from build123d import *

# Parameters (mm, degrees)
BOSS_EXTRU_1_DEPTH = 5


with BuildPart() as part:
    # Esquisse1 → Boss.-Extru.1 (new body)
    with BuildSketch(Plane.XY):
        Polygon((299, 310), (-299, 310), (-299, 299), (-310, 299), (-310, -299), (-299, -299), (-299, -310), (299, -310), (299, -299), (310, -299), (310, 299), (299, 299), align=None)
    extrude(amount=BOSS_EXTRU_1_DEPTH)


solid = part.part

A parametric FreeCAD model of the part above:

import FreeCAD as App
import Part
import Sketcher

doc = App.newDocument("Part")
body = doc.addObject("PartDesign::Body", "Body")

# Sketch on XY plane
sketch1 = doc.addObject("Sketcher::SketchObject", "Sketch")
body.addObject(sketch1)
sketch1.AttachmentSupport = (doc.XY_Plane, [""])
sketch1.MapMode = "FlatFace"
sketch1.addGeometry([
    Part.LineSegment(App.Vector(299, 310, 0), App.Vector(-299, 310, 0)),  # 0
    Part.LineSegment(App.Vector(-299, 310, 0), App.Vector(-299, 299, 0)),  # 1
    Part.LineSegment(App.Vector(-299, 299, 0), App.Vector(-310, 299, 0)),  # 2
    Part.LineSegment(App.Vector(-310, 299, 0), App.Vector(-310, -299, 0)),  # 3
    Part.LineSegment(App.Vector(-310, -299, 0), App.Vector(-299, -299, 0)),  # 4
    Part.LineSegment(App.Vector(-299, -299, 0), App.Vector(-299, -310, 0)),  # 5
    Part.LineSegment(App.Vector(-299, -310, 0), App.Vector(299, -310, 0)),  # 6
    Part.LineSegment(App.Vector(299, -310, 0), App.Vector(299, -299, 0)),  # 7
    Part.LineSegment(App.Vector(299, -299, 0), App.Vector(310, -299, 0)),  # 8
    Part.LineSegment(App.Vector(310, -299, 0), App.Vector(310, 299, 0)),  # 9
    Part.LineSegment(App.Vector(310, 299, 0), App.Vector(299, 299, 0)),  # 10
    Part.LineSegment(App.Vector(299, 299, 0), App.Vector(299, 310, 0)),  # 11
], False)
sketch1.addConstraint([
    Sketcher.Constraint("Coincident", 0, 2, 1, 1),
    Sketcher.Constraint("Coincident", 1, 2, 2, 1),
    Sketcher.Constraint("Coincident", 2, 2, 3, 1),
    Sketcher.Constraint("Coincident", 3, 2, 4, 1),
    Sketcher.Constraint("Coincident", 4, 2, 5, 1),
    Sketcher.Constraint("Coincident", 5, 2, 6, 1),
    Sketcher.Constraint("Coincident", 6, 2, 7, 1),
    Sketcher.Constraint("Coincident", 7, 2, 8, 1),
    Sketcher.Constraint("Coincident", 8, 2, 9, 1),
    Sketcher.Constraint("Coincident", 9, 2, 10, 1),
    Sketcher.Constraint("Coincident", 10, 2, 11, 1),
    Sketcher.Constraint("Coincident", 11, 2, 0, 1),
    Sketcher.Constraint("Horizontal", 0),
    Sketcher.Constraint("Vertical", 1),
    Sketcher.Constraint("Horizontal", 2),
    Sketcher.Constraint("Vertical", 3),
    Sketcher.Constraint("Horizontal", 4),
    Sketcher.Constraint("Vertical", 5),
    Sketcher.Constraint("Horizontal", 6),
    Sketcher.Constraint("Vertical", 7),
    Sketcher.Constraint("Horizontal", 8),
    Sketcher.Constraint("Vertical", 9),
    Sketcher.Constraint("Horizontal", 10),
    Sketcher.Constraint("Vertical", 11),
    Sketcher.Constraint("Symmetric", 0, 2, 6, 2, -1, 1),
    Sketcher.Constraint("Symmetric", 2, 2, 8, 2, -1, 1),
    Sketcher.Constraint("Symmetric", 4, 2, 10, 2, -1, 1),
    Sketcher.Constraint("Symmetric", 4, 2, 7, 2, -2),
    Sketcher.Constraint("Equal", 10, 1),
    Sketcher.Constraint("Equal", 6, 3),
    Sketcher.Constraint("DistanceX", 0, 2, 0, 1, 598.0),
    Sketcher.Constraint("DistanceX", 2, 2, 2, 1, 11.0),
])
pad1 = doc.addObject("PartDesign::Pad", "Pad")
body.addObject(pad1)
pad1.Profile = sketch1
pad1.Length = 5

doc.recompute()
